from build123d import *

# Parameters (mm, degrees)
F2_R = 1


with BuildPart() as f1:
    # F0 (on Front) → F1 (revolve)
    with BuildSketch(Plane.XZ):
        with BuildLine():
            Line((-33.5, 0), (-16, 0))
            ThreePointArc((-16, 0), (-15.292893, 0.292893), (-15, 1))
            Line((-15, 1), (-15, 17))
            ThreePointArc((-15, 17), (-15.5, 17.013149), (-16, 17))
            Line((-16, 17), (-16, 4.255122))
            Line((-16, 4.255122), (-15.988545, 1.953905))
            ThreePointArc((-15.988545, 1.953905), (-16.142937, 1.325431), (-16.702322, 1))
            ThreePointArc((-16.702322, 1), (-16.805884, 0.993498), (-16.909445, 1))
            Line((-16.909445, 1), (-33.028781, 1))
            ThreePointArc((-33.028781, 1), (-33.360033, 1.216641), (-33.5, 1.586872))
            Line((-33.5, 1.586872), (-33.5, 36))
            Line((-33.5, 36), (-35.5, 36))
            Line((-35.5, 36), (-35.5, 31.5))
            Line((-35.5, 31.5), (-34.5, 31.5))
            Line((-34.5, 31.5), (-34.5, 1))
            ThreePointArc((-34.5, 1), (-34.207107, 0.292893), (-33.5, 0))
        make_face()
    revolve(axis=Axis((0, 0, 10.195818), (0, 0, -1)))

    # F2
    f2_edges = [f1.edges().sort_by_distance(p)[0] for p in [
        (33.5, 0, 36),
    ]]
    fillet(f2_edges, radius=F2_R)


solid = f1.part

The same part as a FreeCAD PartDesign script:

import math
import FreeCAD as App
import Part
import Sketcher
from FreeCAD import Vector
Q = App.Units.Quantity


def edges_at(feature, points):
    """Names of the edges that pass closest to the given points."""
    edges = feature.Shape.Edges
    near = lambda p: min(range(len(edges)), key=lambda i: edges[i].distToShape(Part.Vertex(*p))[0])
    return sorted({f"Edge{near(p) + 1}" for p in points})

doc = App.newDocument("Part")
body = doc.addObject("PartDesign::Body", "Body")

# Sketch on XZ plane
sketch1 = doc.addObject("Sketcher::SketchObject", "Sketch")
body.addObject(sketch1)
sketch1.AttachmentSupport = (doc.XZ_Plane, [""])
sketch1.MapMode = "FlatFace"
sketch1.addGeometry([
    Part.LineSegment(Vector(-33.5, 0, 0), Vector(-16, 0, 0)),  # 0
    Part.ArcOfCircle(Part.Circle(Vector(-15.999999, 0.999999, 0), Vector(0, 0, 1), 0.999999), math.radians(-90.000043), math.radians(0.000043)),  # 1
    Part.LineSegment(Vector(-15, 1, 0), Vector(-15, 17, 0)),  # 2
    Part.ArcOfCircle(Part.Circle(Vector(-15.5, 7.500148, 0), Vector(0, 0, 1), 9.513001), math.radians(86.987166), math.radians(93.012834)),  # 3
    Part.LineSegment(Vector(-16, 17, 0), Vector(-16, 4.255122, 0)),  # 4
    Part.LineSegment(Vector(-16, 4.255122, 0), Vector(-15.988545, 1.953905, 0)),  # 5
    Part.ArcOfCircle(Part.Circle(Vector(-16.805883, 1.821493, 0), Vector(0, 0, 1), 0.827995), math.radians(-82.814912), math.radians(9.202213)),  # 6
    Part.ArcOfCircle(Part.Circle(Vector(-16.805884, 1.821494, 0), Vector(0, 0, 1), 0.827996), math.radians(-97.18508), math.radians(-82.81492)),  # 7
    Part.LineSegment(Vector(-16.909445, 1, 0), Vector(-33.028781, 1, 0)),  # 8
    Part.ArcOfCircle(Part.Circle(Vector(-32.862075, 1.616469, 0), Vector(0, 0, 1), 0.638611), math.radians(-177.343655), math.radians(-105.132072)),  # 9
    Part.LineSegment(Vector(-33.5, 1.586872, 0), Vector(-33.5, 36, 0)),  # 10
    Part.LineSegment(Vector(-33.5, 36, 0), Vector(-35.5, 36, 0)),  # 11
    Part.LineSegment(Vector(-35.5, 36, 0), Vector(-35.5, 31.5, 0)),  # 12
    Part.LineSegment(Vector(-35.5, 31.5, 0), Vector(-34.5, 31.5, 0)),  # 13
    Part.LineSegment(Vector(-34.5, 31.5, 0), Vector(-34.5, 1, 0)),  # 14
    Part.ArcOfCircle(Part.Circle(Vector(-33.500001, 0.999999, 0), Vector(0, 0, 1), 0.999999), math.radians(179.999957), math.radians(270.000043)),  # 15
], False)
sketch1.addConstraint([
    Sketcher.Constraint("Coincident", 0, 2, 1, 1),
    Sketcher.Constraint("Coincident", 1, 2, 2, 1),
    Sketcher.Constraint("Coincident", 2, 2, 3, 1),
    Sketcher.Constraint("Coincident", 3, 2, 4, 1),
    Sketcher.Constraint("Coincident", 4, 2, 5, 1),
    Sketcher.Constraint("Coincident", 5, 2, 6, 2),
    Sketcher.Constraint("Coincident", 6, 1, 7, 2),
    Sketcher.Constraint("Coincident", 7, 1, 8, 1),
    Sketcher.Constraint("Coincident", 8, 2, 9, 2),
    Sketcher.Constraint("Coincident", 9, 1, 10, 1),
    Sketcher.Constraint("Coincident", 10, 2, 11, 1),
    Sketcher.Constraint("Coincident", 11, 2, 12, 1),
    Sketcher.Constraint("Coincident", 12, 2, 13, 1),
    Sketcher.Constraint("Coincident", 13, 2, 14, 1),
    Sketcher.Constraint("Coincident", 14, 2, 15, 1),
    Sketcher.Constraint("Coincident", 15, 2, 0, 1),
    Sketcher.Constraint("Horizontal", 0),
    Sketcher.Constraint("Vertical", 2),
    Sketcher.Constraint("Vertical", 4),
    Sketcher.Constraint("Horizontal", 8),
    Sketcher.Constraint("Vertical", 10),
    Sketcher.Constraint("Horizontal", 11),
    Sketcher.Constraint("Vertical", 12),
    Sketcher.Constraint("Horizontal", 13),
    Sketcher.Constraint("Vertical", 14),
    Sketcher.Constraint("Coincident", 7, 3, 6, 3),
    Sketcher.Constraint("PointOnObject", 0, 2, -1),
    Sketcher.Constraint("Radius", 1, Q("0.999999 mm")),
    Sketcher.Constraint("Radius", 15, Q("0.999999 mm")),
    Sketcher.Constraint("DistanceX", 11, 2, 11, 1, Q("2 mm")),
    Sketcher.Constraint("DistanceX", 13, 1, 13, 2, Q("1 mm")),
    Sketcher.Constraint("DistanceY", 2, 1, 2, 2, Q("16 mm")),
    Sketcher.Constraint("DistanceX", 0, 1, 0, 2, Q("17.5 mm")),
    Sketcher.Constraint("DistanceY", 12, 2, 12, 1, Q("4.5 mm")),
    Sketcher.Constraint("DistanceY", 14, 2, 14, 1, Q("30.5 mm")),
    Sketcher.Constraint("DistanceX", 1, 3, -1, 1, Q("15.999999 mm")),
    Sketcher.Constraint("DistanceX", 0, 2, -1, 1, Q("16 mm")),
    Sketcher.Constraint("DistanceY", -1, 1, 1, 2, Q("1 mm")),
    Sketcher.Constraint("DistanceX", 3, 2, -1, 1, Q("16 mm")),
    Sketcher.Constraint("DistanceY", -1, 1, 3, 2, Q("17 mm")),
    Sketcher.Constraint("DistanceY", -1, 1, 6, 1, Q("1 mm")),
    Sketcher.Constraint("DistanceY", -1, 1, 7, 1, Q("1 mm")),
    Sketcher.Constraint("DistanceY", -1, 1, 10, 2, Q("36 mm")),
    Sketcher.Constraint("Radius", 3, Q("9.513001 mm")),
    Sketcher.Constraint("DistanceX", 15, 3, 3, 3, Q("18.000001 mm")),
    Sketcher.Constraint("Radius", 9, Q("0.638611 mm")),
    Sketcher.Constraint("Radius", 6, Q("0.827995 mm")),
    Sketcher.Constraint("DistanceX", 7, 1, 5, 2, Q("0.9209 mm")),
    Sketcher.Constraint("DistanceX", 8, 2, 8, 1, Q("16.119336 mm")),
    Sketcher.Constraint("DistanceY", 4, 2, 4, 1, Q("12.744878 mm")),
    Sketcher.Constraint("DistanceY", 10, 1, 10, 2, Q("34.413128 mm")),
    Sketcher.Constraint("DistanceY", -1, 1, 9, 3, Q("1.616469 mm")),
    Sketcher.Constraint("DistanceX", 9, 3, 7, 3, Q("16.056191 mm")),
])
revolution = doc.addObject("PartDesign::Revolution", "Revolution")
body.addObject(revolution)
revolution.Profile = sketch1
revolution.ReferenceAxis = (sketch1, ["V_Axis"])
revolution.Angle = 360
doc.recompute()

fillet = doc.addObject("PartDesign::Fillet", "Fillet")
body.addObject(fillet)
fillet.Base = (revolution, edges_at(revolution, [(33.5, 0, 36)]))
fillet.Radius = 1

doc.recompute()
